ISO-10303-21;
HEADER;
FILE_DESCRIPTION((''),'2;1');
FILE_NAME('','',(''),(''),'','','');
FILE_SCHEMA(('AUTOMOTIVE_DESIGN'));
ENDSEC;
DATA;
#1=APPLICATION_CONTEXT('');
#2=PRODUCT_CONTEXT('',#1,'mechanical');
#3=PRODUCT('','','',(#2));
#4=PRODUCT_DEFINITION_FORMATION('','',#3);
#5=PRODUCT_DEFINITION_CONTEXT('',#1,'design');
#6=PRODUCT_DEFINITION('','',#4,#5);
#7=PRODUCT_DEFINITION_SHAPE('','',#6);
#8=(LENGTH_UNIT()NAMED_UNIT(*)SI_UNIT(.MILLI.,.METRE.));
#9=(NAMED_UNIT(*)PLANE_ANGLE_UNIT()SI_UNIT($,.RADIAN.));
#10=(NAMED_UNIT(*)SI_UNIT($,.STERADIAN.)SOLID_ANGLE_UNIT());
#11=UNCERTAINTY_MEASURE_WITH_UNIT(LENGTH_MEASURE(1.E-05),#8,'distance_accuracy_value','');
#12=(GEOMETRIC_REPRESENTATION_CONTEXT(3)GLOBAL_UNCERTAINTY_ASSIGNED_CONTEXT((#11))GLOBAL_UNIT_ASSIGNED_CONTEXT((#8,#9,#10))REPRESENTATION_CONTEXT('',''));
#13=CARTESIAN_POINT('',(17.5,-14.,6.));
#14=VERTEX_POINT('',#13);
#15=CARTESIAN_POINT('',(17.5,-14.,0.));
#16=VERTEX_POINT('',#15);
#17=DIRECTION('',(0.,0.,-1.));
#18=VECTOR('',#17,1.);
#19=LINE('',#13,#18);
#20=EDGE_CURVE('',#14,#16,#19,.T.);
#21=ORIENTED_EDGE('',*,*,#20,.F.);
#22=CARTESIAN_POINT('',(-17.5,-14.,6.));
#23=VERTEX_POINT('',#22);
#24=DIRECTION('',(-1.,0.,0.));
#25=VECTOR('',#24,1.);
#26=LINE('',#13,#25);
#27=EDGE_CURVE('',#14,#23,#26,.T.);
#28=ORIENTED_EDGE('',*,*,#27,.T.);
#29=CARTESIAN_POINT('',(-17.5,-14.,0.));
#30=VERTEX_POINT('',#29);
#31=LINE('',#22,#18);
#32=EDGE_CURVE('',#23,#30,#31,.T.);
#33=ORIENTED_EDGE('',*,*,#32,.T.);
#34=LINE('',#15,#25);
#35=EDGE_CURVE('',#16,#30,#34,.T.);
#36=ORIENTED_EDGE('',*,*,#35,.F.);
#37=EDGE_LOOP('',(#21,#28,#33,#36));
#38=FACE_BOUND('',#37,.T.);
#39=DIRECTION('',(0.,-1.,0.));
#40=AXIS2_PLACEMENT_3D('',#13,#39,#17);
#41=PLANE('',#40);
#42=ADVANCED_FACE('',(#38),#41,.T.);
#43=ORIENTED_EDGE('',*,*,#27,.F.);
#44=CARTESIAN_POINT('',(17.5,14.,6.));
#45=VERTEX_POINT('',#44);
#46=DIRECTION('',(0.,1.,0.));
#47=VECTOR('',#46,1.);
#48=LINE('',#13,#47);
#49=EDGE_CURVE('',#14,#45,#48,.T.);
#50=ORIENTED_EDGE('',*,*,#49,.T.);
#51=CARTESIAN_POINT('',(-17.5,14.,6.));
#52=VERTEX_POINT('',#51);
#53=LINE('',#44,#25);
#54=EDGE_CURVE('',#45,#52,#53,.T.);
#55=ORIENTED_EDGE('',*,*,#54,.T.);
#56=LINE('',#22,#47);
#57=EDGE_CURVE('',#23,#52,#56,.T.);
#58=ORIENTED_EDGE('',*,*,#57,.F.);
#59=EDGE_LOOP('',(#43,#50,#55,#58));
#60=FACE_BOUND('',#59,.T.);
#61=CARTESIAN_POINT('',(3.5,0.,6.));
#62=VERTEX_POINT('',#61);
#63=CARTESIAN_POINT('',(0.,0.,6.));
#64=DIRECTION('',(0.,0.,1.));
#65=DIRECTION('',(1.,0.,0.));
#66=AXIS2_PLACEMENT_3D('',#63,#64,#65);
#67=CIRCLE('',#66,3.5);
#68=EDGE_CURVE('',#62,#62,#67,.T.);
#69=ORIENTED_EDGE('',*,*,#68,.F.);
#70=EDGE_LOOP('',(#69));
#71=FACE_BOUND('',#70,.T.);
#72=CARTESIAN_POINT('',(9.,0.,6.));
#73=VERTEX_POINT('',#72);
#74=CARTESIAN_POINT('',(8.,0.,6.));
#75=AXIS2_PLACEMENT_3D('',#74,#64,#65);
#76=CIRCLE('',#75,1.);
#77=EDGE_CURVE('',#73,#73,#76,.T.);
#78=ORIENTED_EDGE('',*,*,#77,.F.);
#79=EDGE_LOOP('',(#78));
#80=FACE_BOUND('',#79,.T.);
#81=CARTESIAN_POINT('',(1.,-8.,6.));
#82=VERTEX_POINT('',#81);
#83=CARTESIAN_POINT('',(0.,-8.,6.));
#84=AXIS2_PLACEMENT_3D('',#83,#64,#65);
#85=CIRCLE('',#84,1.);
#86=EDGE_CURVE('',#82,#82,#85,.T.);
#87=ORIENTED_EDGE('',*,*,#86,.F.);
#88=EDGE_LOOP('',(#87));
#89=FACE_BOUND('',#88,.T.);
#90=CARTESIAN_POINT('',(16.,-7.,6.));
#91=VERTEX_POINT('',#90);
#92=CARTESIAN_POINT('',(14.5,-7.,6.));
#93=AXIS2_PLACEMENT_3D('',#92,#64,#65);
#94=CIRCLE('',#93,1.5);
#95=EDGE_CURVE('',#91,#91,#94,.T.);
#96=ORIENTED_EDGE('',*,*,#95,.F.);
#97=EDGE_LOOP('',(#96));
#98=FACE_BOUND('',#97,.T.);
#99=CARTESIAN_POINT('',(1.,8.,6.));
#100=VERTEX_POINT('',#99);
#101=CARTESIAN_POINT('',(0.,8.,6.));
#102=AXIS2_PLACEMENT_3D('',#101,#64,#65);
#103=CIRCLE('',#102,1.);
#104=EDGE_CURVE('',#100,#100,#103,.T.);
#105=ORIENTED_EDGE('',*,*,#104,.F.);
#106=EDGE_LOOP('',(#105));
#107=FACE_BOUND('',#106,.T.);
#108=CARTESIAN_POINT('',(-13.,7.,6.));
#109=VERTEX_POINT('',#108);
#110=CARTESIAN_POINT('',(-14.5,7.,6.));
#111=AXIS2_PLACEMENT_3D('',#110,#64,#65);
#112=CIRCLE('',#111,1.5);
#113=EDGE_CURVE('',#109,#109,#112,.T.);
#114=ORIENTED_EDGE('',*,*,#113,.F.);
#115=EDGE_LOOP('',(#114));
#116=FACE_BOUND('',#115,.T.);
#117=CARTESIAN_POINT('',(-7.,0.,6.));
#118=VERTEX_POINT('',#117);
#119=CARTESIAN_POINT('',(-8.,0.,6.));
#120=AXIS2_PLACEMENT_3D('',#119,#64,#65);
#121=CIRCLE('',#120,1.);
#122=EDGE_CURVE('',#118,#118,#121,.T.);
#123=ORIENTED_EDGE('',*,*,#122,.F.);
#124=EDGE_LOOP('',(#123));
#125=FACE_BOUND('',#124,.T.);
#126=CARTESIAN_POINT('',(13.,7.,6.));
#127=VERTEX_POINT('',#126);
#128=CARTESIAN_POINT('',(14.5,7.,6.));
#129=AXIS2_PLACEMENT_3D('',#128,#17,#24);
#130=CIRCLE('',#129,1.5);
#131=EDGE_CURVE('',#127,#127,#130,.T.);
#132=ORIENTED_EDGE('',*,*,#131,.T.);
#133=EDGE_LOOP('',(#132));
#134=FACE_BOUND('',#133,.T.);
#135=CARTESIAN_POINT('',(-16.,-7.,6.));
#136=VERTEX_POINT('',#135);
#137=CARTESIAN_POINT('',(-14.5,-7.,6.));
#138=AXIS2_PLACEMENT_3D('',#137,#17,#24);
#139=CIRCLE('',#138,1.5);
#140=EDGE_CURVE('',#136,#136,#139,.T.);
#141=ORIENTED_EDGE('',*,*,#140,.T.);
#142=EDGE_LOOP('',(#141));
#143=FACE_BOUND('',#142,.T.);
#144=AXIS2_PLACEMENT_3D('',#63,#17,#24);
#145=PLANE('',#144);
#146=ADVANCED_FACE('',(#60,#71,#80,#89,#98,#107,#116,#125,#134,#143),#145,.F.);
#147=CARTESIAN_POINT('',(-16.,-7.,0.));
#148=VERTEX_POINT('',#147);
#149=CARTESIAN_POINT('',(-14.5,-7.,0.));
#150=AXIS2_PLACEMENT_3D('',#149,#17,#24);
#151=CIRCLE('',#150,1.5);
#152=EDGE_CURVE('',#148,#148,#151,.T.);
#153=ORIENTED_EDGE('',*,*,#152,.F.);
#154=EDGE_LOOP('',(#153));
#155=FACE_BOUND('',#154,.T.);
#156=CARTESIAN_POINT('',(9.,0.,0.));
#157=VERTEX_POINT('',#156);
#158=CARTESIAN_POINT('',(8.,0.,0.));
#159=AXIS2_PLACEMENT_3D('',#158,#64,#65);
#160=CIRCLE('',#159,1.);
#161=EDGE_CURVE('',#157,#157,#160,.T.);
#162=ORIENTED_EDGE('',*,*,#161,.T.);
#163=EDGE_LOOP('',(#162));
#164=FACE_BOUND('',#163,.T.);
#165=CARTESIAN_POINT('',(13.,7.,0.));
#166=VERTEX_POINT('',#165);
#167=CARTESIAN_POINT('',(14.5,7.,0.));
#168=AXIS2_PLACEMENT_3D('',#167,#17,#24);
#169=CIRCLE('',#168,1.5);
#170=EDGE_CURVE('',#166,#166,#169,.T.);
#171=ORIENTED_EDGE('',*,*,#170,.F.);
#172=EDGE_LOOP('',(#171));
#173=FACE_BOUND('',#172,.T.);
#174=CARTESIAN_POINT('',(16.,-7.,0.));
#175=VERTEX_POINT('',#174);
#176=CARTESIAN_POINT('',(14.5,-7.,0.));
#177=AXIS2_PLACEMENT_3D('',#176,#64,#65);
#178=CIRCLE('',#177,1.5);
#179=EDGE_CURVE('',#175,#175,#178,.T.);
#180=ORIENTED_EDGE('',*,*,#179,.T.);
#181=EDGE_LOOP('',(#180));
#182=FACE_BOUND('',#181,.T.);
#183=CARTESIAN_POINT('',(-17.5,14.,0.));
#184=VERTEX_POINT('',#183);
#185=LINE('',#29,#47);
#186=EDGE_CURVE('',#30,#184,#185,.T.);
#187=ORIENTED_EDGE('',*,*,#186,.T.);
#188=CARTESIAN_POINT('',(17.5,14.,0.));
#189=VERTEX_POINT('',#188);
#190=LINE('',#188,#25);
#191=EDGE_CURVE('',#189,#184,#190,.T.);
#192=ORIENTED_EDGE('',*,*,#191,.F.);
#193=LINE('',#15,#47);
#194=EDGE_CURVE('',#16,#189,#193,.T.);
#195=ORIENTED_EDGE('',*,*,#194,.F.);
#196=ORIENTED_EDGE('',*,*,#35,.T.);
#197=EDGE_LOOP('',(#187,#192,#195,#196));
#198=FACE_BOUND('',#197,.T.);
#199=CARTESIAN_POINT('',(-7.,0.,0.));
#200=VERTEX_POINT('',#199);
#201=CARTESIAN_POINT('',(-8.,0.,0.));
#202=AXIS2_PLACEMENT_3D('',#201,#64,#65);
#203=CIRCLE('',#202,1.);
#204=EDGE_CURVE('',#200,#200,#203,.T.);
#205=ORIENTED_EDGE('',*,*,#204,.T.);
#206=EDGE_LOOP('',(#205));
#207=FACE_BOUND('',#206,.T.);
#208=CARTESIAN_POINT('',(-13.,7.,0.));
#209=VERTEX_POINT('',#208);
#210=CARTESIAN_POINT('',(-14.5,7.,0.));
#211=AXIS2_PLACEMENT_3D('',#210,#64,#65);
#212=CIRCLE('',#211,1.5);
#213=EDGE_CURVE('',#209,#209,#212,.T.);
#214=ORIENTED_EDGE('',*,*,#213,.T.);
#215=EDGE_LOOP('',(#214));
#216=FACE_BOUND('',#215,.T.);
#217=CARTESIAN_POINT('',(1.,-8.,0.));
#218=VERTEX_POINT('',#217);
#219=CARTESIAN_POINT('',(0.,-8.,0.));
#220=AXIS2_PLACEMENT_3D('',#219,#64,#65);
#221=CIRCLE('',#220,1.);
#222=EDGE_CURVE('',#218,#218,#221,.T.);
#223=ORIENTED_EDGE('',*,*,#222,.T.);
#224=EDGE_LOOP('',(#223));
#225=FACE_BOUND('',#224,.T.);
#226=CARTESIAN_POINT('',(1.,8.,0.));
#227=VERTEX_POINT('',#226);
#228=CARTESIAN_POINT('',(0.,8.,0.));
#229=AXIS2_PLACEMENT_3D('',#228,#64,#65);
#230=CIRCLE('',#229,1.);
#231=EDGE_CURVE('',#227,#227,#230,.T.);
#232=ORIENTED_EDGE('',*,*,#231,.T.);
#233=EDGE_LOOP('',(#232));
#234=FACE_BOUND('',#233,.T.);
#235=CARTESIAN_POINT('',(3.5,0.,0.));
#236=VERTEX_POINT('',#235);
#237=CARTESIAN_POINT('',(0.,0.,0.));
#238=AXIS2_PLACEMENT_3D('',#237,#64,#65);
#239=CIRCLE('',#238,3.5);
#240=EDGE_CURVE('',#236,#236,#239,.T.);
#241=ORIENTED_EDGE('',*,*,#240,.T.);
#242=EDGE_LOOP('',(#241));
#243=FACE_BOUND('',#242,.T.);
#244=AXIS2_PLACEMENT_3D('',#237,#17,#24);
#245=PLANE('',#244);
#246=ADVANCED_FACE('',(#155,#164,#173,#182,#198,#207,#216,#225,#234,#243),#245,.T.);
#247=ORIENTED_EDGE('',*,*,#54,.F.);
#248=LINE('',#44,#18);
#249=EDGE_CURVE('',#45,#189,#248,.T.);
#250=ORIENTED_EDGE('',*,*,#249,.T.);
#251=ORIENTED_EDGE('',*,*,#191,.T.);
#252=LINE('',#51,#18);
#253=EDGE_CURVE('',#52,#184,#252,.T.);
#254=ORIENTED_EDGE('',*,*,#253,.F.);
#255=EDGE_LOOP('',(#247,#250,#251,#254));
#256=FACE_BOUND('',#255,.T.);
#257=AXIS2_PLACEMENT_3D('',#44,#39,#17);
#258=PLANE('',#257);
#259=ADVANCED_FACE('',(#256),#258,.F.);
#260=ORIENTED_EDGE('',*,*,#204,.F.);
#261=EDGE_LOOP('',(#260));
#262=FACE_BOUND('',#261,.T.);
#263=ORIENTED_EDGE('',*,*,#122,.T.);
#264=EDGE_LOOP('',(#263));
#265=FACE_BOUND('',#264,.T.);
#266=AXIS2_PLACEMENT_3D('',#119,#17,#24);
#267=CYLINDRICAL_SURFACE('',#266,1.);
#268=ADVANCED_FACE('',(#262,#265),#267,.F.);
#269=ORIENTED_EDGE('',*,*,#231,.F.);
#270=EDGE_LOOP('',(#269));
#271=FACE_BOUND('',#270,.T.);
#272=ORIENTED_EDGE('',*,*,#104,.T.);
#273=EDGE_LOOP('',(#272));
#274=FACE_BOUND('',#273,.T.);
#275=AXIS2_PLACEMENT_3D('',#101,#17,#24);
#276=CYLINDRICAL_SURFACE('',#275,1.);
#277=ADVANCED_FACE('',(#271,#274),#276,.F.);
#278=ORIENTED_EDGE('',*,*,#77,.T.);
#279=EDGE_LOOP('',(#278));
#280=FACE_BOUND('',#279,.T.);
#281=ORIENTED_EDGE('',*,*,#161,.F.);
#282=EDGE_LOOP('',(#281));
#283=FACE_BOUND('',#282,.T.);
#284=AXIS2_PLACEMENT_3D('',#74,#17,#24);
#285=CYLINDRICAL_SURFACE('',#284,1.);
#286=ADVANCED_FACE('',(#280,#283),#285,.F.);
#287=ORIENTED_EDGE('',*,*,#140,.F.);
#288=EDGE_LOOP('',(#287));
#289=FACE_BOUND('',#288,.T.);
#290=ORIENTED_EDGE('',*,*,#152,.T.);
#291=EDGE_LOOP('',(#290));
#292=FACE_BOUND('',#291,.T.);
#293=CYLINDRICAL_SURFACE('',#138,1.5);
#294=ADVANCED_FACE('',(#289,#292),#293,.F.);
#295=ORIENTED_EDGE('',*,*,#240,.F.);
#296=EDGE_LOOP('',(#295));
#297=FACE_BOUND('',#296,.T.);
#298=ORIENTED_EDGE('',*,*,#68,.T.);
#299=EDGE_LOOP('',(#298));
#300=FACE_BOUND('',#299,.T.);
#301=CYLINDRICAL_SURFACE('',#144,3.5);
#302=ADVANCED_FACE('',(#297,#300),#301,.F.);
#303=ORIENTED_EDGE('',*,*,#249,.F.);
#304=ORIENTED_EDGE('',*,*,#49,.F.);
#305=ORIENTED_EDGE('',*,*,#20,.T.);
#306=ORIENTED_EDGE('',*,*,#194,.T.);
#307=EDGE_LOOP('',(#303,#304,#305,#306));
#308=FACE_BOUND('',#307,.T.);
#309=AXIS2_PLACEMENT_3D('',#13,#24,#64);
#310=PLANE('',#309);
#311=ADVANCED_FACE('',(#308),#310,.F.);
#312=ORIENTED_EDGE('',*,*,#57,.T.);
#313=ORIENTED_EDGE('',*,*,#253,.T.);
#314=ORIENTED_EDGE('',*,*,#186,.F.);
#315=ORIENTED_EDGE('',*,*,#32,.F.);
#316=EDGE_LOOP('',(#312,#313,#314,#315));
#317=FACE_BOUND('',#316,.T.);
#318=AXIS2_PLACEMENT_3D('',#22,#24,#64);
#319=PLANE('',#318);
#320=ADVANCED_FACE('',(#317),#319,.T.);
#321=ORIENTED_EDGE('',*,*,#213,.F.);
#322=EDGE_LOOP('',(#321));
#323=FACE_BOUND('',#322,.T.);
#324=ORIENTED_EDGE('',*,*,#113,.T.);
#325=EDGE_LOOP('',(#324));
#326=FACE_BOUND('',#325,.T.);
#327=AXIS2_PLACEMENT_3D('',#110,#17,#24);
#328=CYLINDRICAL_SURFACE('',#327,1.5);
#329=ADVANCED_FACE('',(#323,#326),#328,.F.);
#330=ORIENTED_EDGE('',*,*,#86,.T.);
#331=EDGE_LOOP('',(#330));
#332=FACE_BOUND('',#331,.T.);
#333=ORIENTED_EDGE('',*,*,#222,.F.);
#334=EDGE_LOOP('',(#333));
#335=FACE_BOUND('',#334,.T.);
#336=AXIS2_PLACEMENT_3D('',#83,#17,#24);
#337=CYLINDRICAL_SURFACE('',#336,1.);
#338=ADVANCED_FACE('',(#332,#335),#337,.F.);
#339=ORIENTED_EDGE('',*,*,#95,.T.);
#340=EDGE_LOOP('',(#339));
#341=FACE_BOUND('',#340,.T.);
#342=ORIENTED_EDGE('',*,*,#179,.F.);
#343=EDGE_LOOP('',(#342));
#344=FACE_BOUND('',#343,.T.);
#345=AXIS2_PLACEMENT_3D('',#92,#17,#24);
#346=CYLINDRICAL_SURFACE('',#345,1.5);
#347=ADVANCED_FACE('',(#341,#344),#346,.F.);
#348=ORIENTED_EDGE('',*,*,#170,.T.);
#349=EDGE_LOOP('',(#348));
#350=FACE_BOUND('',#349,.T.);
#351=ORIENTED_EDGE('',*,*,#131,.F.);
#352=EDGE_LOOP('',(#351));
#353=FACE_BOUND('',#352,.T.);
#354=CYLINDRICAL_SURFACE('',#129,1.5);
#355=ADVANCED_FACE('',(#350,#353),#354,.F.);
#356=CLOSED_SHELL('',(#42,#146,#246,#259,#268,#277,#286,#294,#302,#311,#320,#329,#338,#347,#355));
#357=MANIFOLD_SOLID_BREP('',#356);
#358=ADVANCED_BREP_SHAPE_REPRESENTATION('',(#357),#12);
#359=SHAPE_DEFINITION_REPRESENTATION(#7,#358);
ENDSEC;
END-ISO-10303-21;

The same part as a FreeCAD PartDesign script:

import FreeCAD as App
import Part
import Sketcher

V = App.Vector
Q = App.Units.Quantity


def add_polygon(sketch, points):
    """Adds a closed chain of lines whose ends are joined by coincident constraints."""
    first, n = sketch.GeometryCount, len(points)
    for a, b in zip(points, points[1:] + points[:1]):
        sketch.addGeometry(Part.LineSegment(App.Vector(*a, 0), App.Vector(*b, 0)), False)
    for i in range(n):
        sketch.addConstraint(Sketcher.Constraint("Coincident", first + i, 2, first + (i + 1) % n, 1))

doc = App.newDocument("Part")
body = doc.addObject("PartDesign::Body", "Body")

# Sketch on XY plane
sketch1 = body.newObject("Sketcher::SketchObject", "Sketch")
sketch1.AttachmentSupport = (doc.getObject("XY_Plane"), [""])
sketch1.MapMode = "FlatFace"
add_polygon(sketch1, [(-17.5, 14), (-17.5, -14), (17.5, -14), (17.5, 14)])  # lines 0-3
sketch1.addGeometry(Part.Circle(V(-14.5, -7, 0), V(0, 0, 1), 1.5), False)  # 4
sketch1.addGeometry(Part.Circle(V(0, -8, 0), V(0, 0, 1), 1), False)  # 5
sketch1.addGeometry(Part.Circle(V(14.5, -7, 0), V(0, 0, 1), 1.5), False)  # 6
sketch1.addGeometry(Part.Circle(V(-8, 0, 0), V(0, 0, 1), 1), False)  # 7
sketch1.addGeometry(Part.Circle(V(-14.5, 7, 0), V(0, 0, 1), 1.5), False)  # 8
sketch1.addGeometry(Part.Circle(V(0, 0, 0), V(0, 0, 1), 3.5), False)  # 9
sketch1.addGeometry(Part.Circle(V(8, 0, 0), V(0, 0, 1), 1), False)  # 10
sketch1.addGeometry(Part.Circle(V(0, 8, 0), V(0, 0, 1), 1), False)  # 11
sketch1.addGeometry(Part.Circle(V(14.5, 7, 0), V(0, 0, 1), 1.5), False)  # 12
sketch1.addConstraint(Sketcher.Constraint("Vertical", 0))
sketch1.addConstraint(Sketcher.Constraint("Horizontal", 1))
sketch1.addConstraint(Sketcher.Constraint("Vertical", 2))
sketch1.addConstraint(Sketcher.Constraint("Horizontal", 3))
sketch1.addConstraint(Sketcher.Constraint("Coincident", 9, 3, -1, 1))
sketch1.addConstraint(Sketcher.Constraint("Equal", 4, 6))
sketch1.addConstraint(Sketcher.Constraint("Equal", 5, 7))
sketch1.addConstraint(Sketcher.Constraint("Equal", 6, 8))
sketch1.addConstraint(Sketcher.Constraint("Equal", 7, 10))
sketch1.addConstraint(Sketcher.Constraint("Equal", 10, 11))
sketch1.addConstraint(Sketcher.Constraint("Equal", 8, 12))
sketch1.addConstraint(Sketcher.Constraint("Symmetric", 6, 3, 8, 3, -1, 1))
sketch1.addConstraint(Sketcher.Constraint("Symmetric", 7, 3, 10, 3, -1, 1))
sketch1.addConstraint(Sketcher.Constraint("Symmetric", 5, 3, 11, 3, -1, 1))
sketch1.addConstraint(Sketcher.Constraint("Symmetric", 4, 3, 12, 3, -1, 1))
sketch1.addConstraint(Sketcher.Constraint("Symmetric", 0, 2, 2, 2, -1, 1))
sketch1.addConstraint(Sketcher.Constraint("Symmetric", 4, 3, 6, 3, -2))
sketch1.addConstraint(Sketcher.Constraint("PointOnObject", 5, 3, -2))
sketch1.addConstraint(Sketcher.Constraint("PointOnObject", 7, 3, -1))
sketch1.addConstraint(Sketcher.Constraint("Diameter", 4, Q("3 mm")))
sketch1.addConstraint(Sketcher.Constraint("Diameter", 5, Q("2 mm")))
sketch1.addConstraint(Sketcher.Constraint("Diameter", 9, Q("7 mm")))
sketch1.addConstraint(Sketcher.Constraint("DistanceX", 1, 1, 1, 2, Q("35 mm")))
sketch1.addConstraint(Sketcher.Constraint("DistanceY", 0, 2, 0, 1, Q("28 mm")))
sketch1.addConstraint(Sketcher.Constraint("DistanceY", 4, 3, -1, 1, Q("7 mm")))
sketch1.addConstraint(Sketcher.Constraint("DistanceY", 5, 3, -1, 1, Q("8 mm")))
sketch1.addConstraint(Sketcher.Constraint("DistanceX", 7, 3, -1, 1, Q("8 mm")))
sketch1.addConstraint(Sketcher.Constraint("DistanceX", 4, 3, 6, 3, Q("29 mm")))
pad1 = body.newObject("PartDesign::Pad", "Pad")
pad1.Profile = sketch1
pad1.Length = 6

doc.recompute()
